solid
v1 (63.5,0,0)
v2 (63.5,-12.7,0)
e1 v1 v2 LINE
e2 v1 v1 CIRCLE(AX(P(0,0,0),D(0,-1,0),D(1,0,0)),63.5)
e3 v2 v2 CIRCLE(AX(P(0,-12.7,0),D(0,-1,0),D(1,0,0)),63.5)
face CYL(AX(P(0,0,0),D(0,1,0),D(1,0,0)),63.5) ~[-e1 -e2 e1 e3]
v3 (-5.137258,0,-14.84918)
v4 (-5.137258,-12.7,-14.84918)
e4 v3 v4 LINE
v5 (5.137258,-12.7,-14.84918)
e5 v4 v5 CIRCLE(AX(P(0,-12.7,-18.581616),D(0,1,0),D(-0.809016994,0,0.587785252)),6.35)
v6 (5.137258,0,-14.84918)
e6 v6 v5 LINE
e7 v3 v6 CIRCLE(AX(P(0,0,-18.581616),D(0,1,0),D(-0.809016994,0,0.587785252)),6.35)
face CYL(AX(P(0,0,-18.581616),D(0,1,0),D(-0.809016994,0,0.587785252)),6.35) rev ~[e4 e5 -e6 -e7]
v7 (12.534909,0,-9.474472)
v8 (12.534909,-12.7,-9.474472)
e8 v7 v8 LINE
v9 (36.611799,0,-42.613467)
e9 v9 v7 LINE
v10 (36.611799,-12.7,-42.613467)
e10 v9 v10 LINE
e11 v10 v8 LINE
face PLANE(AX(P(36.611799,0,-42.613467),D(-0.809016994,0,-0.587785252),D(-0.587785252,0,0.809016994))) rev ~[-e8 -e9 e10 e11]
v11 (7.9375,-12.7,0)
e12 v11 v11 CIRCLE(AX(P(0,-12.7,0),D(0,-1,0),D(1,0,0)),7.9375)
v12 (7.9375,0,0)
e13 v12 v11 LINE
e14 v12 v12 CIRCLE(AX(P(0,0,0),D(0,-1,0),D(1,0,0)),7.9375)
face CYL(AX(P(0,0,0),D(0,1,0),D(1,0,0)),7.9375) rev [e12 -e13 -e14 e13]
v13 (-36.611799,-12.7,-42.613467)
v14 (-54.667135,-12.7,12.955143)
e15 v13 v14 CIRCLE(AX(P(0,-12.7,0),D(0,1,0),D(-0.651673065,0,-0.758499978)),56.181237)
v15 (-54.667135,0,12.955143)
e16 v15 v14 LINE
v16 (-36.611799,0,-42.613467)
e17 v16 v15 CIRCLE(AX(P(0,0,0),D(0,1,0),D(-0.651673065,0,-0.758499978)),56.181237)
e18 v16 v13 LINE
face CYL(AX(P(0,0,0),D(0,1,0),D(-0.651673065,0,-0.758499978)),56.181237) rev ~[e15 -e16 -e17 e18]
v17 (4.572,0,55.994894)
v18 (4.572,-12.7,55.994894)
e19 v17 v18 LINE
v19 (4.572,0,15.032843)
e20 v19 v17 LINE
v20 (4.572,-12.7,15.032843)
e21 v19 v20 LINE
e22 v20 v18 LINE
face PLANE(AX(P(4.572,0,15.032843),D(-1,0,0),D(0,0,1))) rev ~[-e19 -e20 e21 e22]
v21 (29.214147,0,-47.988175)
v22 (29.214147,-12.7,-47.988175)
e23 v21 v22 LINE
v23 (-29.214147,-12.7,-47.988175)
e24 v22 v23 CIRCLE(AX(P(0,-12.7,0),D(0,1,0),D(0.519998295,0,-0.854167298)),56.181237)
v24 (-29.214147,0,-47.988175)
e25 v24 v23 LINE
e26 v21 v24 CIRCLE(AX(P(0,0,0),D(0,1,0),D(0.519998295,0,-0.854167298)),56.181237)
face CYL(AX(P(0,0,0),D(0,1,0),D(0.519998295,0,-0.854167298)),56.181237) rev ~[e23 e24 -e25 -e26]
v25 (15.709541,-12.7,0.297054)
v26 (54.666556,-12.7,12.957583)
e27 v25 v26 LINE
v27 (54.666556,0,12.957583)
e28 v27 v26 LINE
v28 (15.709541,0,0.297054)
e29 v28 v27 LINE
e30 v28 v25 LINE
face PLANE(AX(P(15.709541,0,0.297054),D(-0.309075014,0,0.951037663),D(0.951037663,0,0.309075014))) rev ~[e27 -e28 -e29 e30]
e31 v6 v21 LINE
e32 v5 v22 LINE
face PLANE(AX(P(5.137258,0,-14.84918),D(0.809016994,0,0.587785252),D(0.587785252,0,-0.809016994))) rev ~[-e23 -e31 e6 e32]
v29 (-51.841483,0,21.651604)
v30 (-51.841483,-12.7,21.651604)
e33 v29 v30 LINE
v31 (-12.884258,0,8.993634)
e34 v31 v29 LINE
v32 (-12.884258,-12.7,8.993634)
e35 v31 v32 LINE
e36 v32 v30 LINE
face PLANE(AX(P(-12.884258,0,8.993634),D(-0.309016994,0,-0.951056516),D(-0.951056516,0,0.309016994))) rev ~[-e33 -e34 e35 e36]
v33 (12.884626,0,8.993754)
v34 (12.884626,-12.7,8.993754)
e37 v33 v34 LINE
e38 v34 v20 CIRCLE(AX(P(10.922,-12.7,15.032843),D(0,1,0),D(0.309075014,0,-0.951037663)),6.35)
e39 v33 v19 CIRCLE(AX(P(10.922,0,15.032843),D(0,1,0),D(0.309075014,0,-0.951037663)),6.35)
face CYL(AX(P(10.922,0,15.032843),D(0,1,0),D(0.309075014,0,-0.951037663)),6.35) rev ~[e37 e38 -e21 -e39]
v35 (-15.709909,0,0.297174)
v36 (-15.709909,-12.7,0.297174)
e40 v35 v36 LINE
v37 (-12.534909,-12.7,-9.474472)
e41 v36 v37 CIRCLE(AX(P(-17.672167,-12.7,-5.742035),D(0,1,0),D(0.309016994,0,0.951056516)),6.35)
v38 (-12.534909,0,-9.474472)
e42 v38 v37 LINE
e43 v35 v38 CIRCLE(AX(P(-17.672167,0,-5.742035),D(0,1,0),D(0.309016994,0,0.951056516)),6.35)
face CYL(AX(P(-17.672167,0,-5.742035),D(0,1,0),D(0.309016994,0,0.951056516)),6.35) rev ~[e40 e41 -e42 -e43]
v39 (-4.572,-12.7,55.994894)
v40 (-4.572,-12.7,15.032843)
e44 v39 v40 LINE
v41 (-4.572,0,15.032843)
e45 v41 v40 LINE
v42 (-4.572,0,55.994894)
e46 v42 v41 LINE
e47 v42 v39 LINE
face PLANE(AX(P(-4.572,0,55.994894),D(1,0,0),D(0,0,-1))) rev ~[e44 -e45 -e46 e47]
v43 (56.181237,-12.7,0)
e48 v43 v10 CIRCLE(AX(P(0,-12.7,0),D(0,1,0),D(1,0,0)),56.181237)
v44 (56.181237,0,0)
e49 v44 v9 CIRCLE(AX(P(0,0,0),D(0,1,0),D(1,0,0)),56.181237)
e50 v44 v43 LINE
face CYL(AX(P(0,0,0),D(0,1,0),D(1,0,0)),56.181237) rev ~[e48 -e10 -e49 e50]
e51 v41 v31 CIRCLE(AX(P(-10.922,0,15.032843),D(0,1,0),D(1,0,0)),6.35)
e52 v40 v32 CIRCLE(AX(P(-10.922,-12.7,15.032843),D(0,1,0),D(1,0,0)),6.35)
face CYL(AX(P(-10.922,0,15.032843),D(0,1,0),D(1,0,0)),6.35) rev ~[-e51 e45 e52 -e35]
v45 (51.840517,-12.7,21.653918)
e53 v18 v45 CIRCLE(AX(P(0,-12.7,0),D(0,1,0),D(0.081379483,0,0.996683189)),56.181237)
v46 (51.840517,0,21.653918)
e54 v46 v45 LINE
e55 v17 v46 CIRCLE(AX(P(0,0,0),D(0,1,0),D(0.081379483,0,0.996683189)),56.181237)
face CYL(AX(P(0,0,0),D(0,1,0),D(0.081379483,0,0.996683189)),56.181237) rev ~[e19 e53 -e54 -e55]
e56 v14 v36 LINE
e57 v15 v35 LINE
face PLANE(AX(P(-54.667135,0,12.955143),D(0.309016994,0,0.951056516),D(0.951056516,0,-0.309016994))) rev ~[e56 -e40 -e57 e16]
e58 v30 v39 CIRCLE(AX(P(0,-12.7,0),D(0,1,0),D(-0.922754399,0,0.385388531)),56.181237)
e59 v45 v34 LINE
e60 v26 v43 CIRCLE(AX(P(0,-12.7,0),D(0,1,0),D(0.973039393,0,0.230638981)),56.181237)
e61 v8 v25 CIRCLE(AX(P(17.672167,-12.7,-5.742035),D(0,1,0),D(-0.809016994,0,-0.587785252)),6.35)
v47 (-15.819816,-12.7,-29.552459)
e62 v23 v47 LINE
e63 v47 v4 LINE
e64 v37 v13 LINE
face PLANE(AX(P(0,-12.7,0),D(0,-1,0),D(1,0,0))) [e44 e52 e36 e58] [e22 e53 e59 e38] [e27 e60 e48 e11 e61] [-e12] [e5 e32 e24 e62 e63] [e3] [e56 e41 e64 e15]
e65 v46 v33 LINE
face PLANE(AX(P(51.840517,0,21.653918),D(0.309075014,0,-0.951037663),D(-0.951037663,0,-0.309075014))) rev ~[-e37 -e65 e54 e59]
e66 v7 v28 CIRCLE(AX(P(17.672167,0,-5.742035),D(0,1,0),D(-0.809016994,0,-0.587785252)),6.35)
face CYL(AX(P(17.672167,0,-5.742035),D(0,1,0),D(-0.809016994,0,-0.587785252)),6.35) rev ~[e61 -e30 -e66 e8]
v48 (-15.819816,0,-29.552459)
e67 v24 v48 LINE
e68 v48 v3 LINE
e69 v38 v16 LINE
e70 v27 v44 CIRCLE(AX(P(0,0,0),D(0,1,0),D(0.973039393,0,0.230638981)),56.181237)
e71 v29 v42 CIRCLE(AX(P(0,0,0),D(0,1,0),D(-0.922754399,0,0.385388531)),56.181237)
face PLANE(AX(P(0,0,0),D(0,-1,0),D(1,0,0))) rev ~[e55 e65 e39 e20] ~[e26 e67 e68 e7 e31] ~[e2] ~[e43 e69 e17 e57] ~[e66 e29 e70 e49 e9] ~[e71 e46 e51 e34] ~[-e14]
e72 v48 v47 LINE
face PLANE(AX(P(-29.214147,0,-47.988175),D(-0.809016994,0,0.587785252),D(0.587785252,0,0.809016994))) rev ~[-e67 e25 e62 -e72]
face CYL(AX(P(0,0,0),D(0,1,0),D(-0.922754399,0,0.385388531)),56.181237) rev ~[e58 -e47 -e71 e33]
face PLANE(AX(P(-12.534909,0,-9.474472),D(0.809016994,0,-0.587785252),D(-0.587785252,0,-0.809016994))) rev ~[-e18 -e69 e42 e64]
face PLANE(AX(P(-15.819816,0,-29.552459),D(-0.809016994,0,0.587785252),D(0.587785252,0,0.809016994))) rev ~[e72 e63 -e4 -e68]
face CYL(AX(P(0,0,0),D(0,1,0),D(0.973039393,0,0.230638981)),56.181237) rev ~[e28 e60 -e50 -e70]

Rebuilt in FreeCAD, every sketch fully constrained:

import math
import FreeCAD as App
import Part
import Sketcher
Q = App.Units.Quantity

doc = App.newDocument("Part")
body = doc.addObject("PartDesign::Body", "Body")

sketch1 = body.newObject("Sketcher::SketchObject", "Sketch")
sketch1.AttachmentSupport = (doc.getObject("XZ_Plane"), [""])
sketch1.MapMode = "FlatFace"
sketch1.addGeometry(Part.Circle(App.Vector(0, 0, 0), App.Vector(0, 0, 1), 64), False)
sketch1.addGeometry(Part.ArcOfCircle(Part.Circle(App.Vector(0, 0, 0), App.Vector(0, 0, 1), 56), math.radians(167), math.radians(229)), False)
sketch1.addGeometry(Part.LineSegment(App.Vector(-55, 13, 0), App.Vector(-16, 0, 0)), False)
sketch1.addGeometry(Part.ArcOfCircle(Part.Circle(App.Vector(-18, -6, 0), App.Vector(0, 0, 1), 6), math.radians(-36), math.radians(72)), False)
sketch1.addGeometry(Part.LineSegment(App.Vector(-13, -9, 0), App.Vector(-37, -43, 0)), False)
sketch1.addGeometry(Part.ArcOfCircle(Part.Circle(App.Vector(0, 0, 0), App.Vector(0, 0, 1), 56), math.radians(-121), math.radians(-59)), False)
sketch1.addGeometry(Part.LineSegment(App.Vector(-29, -48, 0), App.Vector(-16, -30, 0)), False)
sketch1.addGeometry(Part.LineSegment(App.Vector(-16, -30, 0), App.Vector(-5, -15, 0)), False)
sketch1.addGeometry(Part.ArcOfCircle(Part.Circle(App.Vector(0, -19, 0), App.Vector(0, 0, 1), 6), math.radians(36), math.radians(144)), False)
sketch1.addGeometry(Part.LineSegment(App.Vector(5, -15, 0), App.Vector(29, -48, 0)), False)
sketch1.addGeometry(Part.ArcOfCircle(Part.Circle(App.Vector(0, 0, 0), App.Vector(0, 0, 1), 56), math.radians(-49), math.radians(0)), False)
sketch1.addGeometry(Part.LineSegment(App.Vector(37, -43, 0), App.Vector(13, -9, 0)), False)
sketch1.addGeometry(Part.ArcOfCircle(Part.Circle(App.Vector(18, -6, 0), App.Vector(0, 0, 1), 6), math.radians(108), math.radians(216)), False)
sketch1.addGeometry(Part.LineSegment(App.Vector(16, 0, 0), App.Vector(55, 13, 0)), False)
sketch1.addGeometry(Part.ArcOfCircle(Part.Circle(App.Vector(0, 0, 0), App.Vector(0, 0, 1), 56), math.radians(0), math.radians(13.33)), False)
sketch1.addGeometry(Part.ArcOfCircle(Part.Circle(App.Vector(0, 0, 0), App.Vector(0, 0, 1), 56), math.radians(95), math.radians(157)), False)
sketch1.addGeometry(Part.LineSegment(App.Vector(-5, 56, 0), App.Vector(-5, 15, 0)), False)
sketch1.addGeometry(Part.ArcOfCircle(Part.Circle(App.Vector(-11, 15, 0), App.Vector(0, 0, 1), 6), math.radians(-108), math.radians(0)), False)
sketch1.addGeometry(Part.LineSegment(App.Vector(-13, 9, 0), App.Vector(-52, 22, 0)), False)
sketch1.addGeometry(Part.Circle(App.Vector(0, 0, 0), App.Vector(0, 0, 1), 8), False)
sketch1.addGeometry(Part.ArcOfCircle(Part.Circle(App.Vector(0, 0, 0), App.Vector(0, 0, 1), 56), math.radians(23), math.radians(85)), False)
sketch1.addGeometry(Part.LineSegment(App.Vector(52, 22, 0), App.Vector(13, 9, 0)), False)
sketch1.addGeometry(Part.ArcOfCircle(Part.Circle(App.Vector(11, 15, 0), App.Vector(0, 0, 1), 6), math.radians(180), math.radians(288)), False)
sketch1.addGeometry(Part.LineSegment(App.Vector(5, 15, 0), App.Vector(5, 56, 0)), False)
sketch1.addConstraint(Sketcher.Constraint("Coincident", 1, 1, 2, 1))
sketch1.addConstraint(Sketcher.Constraint("Tangent", 2, 2, 3, 2))
sketch1.addConstraint(Sketcher.Constraint("Tangent", 3, 1, 4, 1))
sketch1.addConstraint(Sketcher.Constraint("Coincident", 4, 2, 1, 2))
sketch1.addConstraint(Sketcher.Constraint("Coincident", 5, 1, 6, 1))
sketch1.addConstraint(Sketcher.Constraint("Coincident", 6, 2, 7, 1))
sketch1.addConstraint(Sketcher.Constraint("Tangent", 7, 2, 8, 2))
sketch1.addConstraint(Sketcher.Constraint("Tangent", 8, 1, 9, 1))
sketch1.addConstraint(Sketcher.Constraint("Coincident", 9, 2, 5, 2))
sketch1.addConstraint(Sketcher.Constraint("Coincident", 10, 1, 11, 1))
sketch1.addConstraint(Sketcher.Constraint("Tangent", 11, 2, 12, 2))
sketch1.addConstraint(Sketcher.Constraint("Tangent", 12, 1, 13, 1))
sketch1.addConstraint(Sketcher.Constraint("Coincident", 13, 2, 14, 2))
sketch1.addConstraint(Sketcher.Constraint("Tangent", 14, 1, 10, 2))
sketch1.addConstraint(Sketcher.Constraint("Coincident", 15, 1, 16, 1))
sketch1.addConstraint(Sketcher.Constraint("Tangent", 16, 2, 17, 2))
sketch1.addConstraint(Sketcher.Constraint("Tangent", 17, 1, 18, 1))
sketch1.addConstraint(Sketcher.Constraint("Coincident", 18, 2, 15, 2))
sketch1.addConstraint(Sketcher.Constraint("Coincident", 20, 1, 21, 1))
sketch1.addConstraint(Sketcher.Constraint("Tangent", 21, 2, 22, 2))
sketch1.addConstraint(Sketcher.Constraint("Tangent", 22, 1, 23, 1))
sketch1.addConstraint(Sketcher.Constraint("Coincident", 23, 2, 20, 2))
sketch1.addConstraint(Sketcher.Constraint("Vertical", 16))
sketch1.addConstraint(Sketcher.Constraint("Vertical", 23))
sketch1.addConstraint(Sketcher.Constraint("Coincident", 0, 3, -1, 1))
sketch1.addConstraint(Sketcher.Constraint("Coincident", 1, 3, -1, 1))
sketch1.addConstraint(Sketcher.Constraint("Coincident", 5, 3, -1, 1))
sketch1.addConstraint(Sketcher.Constraint("Coincident", 10, 3, -1, 1))
sketch1.addConstraint(Sketcher.Constraint("Coincident", 15, 3, -1, 1))
sketch1.addConstraint(Sketcher.Constraint("Coincident", 19, 3, -1, 1))
sketch1.addConstraint(Sketcher.Constraint("Coincident", 20, 3, -1, 1))
sketch1.addConstraint(Sketcher.Constraint("Equal", 1, 5))
sketch1.addConstraint(Sketcher.Constraint("Equal", 3, 8))
sketch1.addConstraint(Sketcher.Constraint("Equal", 5, 10))
sketch1.addConstraint(Sketcher.Constraint("Equal", 8, 12))
sketch1.addConstraint(Sketcher.Constraint("Equal", 10, 14))
sketch1.addConstraint(Sketcher.Constraint("Equal", 14, 15))
sketch1.addConstraint(Sketcher.Constraint("Equal", 12, 17))
sketch1.addConstraint(Sketcher.Constraint("Equal", 15, 20))
sketch1.addConstraint(Sketcher.Constraint("Equal", 17, 22))
sketch1.addConstraint(Sketcher.Constraint("Symmetric", 3, 3, 12, 3, -2))
sketch1.addConstraint(Sketcher.Constraint("Symmetric", 17, 3, 22, 3, -2))
sketch1.addConstraint(Sketcher.Constraint("Symmetric", 7, 2, 8, 1, -2))
sketch1.addConstraint(Sketcher.Constraint("PointOnObject", 14, 1, -1))
sketch1.addConstraint(Sketcher.Constraint("Parallel", 4, 6))
sketch1.addConstraint(Sketcher.Constraint("Parallel", 6, 7))
sketch1.addConstraint(Sketcher.Constraint("Parallel", 9, 11))
sketch1.addConstraint(Sketcher.Constraint("Parallel", 2, 18))
sketch1.addConstraint(Sketcher.Constraint("Parallel", 13, 21))
sketch1.addConstraint(Sketcher.Constraint("Equal", 2, 4))
sketch1.addConstraint(Sketcher.Constraint("Equal", 4, 9))
sketch1.addConstraint(Sketcher.Constraint("Equal", 11, 18))
sketch1.addConstraint(Sketcher.Constraint("Diameter", 0, Q("5 in")))
sketch1.addConstraint(Sketcher.Constraint("Radius", 3, Q("0.25 in")))
sketch1.addConstraint(Sketcher.Constraint("Diameter", 19, Q("0.625 in")))
sketch1.addConstraint(Sketcher.Constraint("Angle", 2, Q("-18 deg")))
sketch1.addConstraint(Sketcher.Constraint("Angle", 4, Q("-126 deg")))
sketch1.addConstraint(Sketcher.Constraint("DistanceX", 17, 3, -1, 1, Q("0.43 in")))
sketch1.addConstraint(Sketcher.Constraint("Radius", 1, 56.181237))
sketch1.addConstraint(Sketcher.Constraint("DistanceY", 16, 2, 16, 1, 40.962051))
sketch1.addConstraint(Sketcher.Constraint("DistanceY", 12, 1, 21, 2, 8.6967))
sketch1.addConstraint(Sketcher.Constraint("DistanceY", 6, 2, -1, 1, 29.552459))
pad1 = body.newObject("PartDesign::Pad", "Pad")
pad1.Profile = sketch1
pad1.Length = Q("0.5 in")

doc.recompute()
